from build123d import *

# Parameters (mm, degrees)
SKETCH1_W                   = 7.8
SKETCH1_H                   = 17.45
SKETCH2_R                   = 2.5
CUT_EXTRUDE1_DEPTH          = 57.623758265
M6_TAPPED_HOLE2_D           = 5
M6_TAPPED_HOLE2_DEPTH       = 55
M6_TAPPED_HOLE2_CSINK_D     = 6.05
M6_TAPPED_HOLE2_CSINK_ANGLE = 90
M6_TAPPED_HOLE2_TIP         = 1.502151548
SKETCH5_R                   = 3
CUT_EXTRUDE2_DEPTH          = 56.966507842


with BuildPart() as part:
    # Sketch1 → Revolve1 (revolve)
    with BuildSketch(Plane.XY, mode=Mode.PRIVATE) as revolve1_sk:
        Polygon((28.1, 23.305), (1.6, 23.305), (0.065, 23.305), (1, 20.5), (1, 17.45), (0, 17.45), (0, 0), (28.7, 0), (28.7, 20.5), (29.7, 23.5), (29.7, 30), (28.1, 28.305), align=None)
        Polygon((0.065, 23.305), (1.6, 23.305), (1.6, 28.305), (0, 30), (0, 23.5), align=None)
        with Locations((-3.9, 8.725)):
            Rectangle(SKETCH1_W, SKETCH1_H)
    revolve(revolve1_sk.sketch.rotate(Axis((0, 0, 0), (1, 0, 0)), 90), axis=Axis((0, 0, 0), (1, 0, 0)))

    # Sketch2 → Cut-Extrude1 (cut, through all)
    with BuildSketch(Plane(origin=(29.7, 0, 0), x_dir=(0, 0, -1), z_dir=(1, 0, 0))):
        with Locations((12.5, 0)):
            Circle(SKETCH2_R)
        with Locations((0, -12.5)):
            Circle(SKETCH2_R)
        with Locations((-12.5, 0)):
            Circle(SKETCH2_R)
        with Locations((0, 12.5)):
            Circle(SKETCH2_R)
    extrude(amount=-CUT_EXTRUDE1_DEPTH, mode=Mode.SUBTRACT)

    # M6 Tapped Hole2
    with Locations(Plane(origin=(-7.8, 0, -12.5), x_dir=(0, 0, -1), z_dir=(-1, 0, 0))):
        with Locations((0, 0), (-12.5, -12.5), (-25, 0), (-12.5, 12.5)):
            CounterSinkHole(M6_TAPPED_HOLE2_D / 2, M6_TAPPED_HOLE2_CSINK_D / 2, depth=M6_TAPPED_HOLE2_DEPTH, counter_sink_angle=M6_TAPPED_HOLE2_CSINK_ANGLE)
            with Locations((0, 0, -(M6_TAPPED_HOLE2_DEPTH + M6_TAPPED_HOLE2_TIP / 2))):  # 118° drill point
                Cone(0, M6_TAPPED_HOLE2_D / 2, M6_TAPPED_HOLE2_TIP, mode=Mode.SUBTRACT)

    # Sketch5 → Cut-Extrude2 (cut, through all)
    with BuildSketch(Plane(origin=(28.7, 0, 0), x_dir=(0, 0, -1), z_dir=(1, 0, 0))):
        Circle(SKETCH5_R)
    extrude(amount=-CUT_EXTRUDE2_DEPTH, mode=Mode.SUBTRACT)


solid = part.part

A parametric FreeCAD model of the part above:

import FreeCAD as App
import Part
import Sketcher

doc = App.newDocument("Part")
body = doc.addObject("PartDesign::Body", "Body")

# Sketch on XY plane
sketch1 = body.newObject("Sketcher::SketchObject", "Sketch")
sketch1.AttachmentSupport = (doc.getObject("XY_Plane"), [""])
sketch1.MapMode = "FlatFace"
sketch1.addGeometry(Part.LineSegment(App.Vector(28.1, 23.305, 0), App.Vector(1.6, 23.305, 0)), False)
sketch1.addGeometry(Part.LineSegment(App.Vector(1.6, 23.305, 0), App.Vector(1.6, 28.305, 0)), False)
sketch1.addGeometry(Part.LineSegment(App.Vector(1.6, 28.305, 0), App.Vector(0, 30, 0)), False)
sketch1.addGeometry(Part.LineSegment(App.Vector(0, 30, 0), App.Vector(0, 23.5, 0)), False)
sketch1.addGeometry(Part.LineSegment(App.Vector(0, 23.5, 0), App.Vector(1, 20.5, 0)), False)
sketch1.addGeometry(Part.LineSegment(App.Vector(1, 20.5, 0), App.Vector(1, 17.45, 0)), False)
sketch1.addGeometry(Part.LineSegment(App.Vector(1, 17.45, 0), App.Vector(-7.8, 17.45, 0)), False)
sketch1.addGeometry(Part.LineSegment(App.Vector(-7.8, 17.45, 0), App.Vector(-7.8, 0, 0)), False)
sketch1.addGeometry(Part.LineSegment(App.Vector(-7.8, 0, 0), App.Vector(28.7, 0, 0)), False)
sketch1.addGeometry(Part.LineSegment(App.Vector(28.7, 0, 0), App.Vector(28.7, 20.5, 0)), False)
sketch1.addGeometry(Part.LineSegment(App.Vector(28.7, 20.5, 0), App.Vector(29.7, 23.5, 0)), False)
sketch1.addGeometry(Part.LineSegment(App.Vector(29.7, 23.5, 0), App.Vector(29.7, 30, 0)), False)
sketch1.addGeometry(Part.LineSegment(App.Vector(29.7, 30, 0), App.Vector(28.1, 28.305, 0)), False)
sketch1.addGeometry(Part.LineSegment(App.Vector(28.1, 28.305, 0), App.Vector(28.1, 23.305, 0)), False)
sketch1.addConstraint(Sketcher.Constraint("Coincident", 0, 2, 1, 1))
sketch1.addConstraint(Sketcher.Constraint("Coincident", 1, 2, 2, 1))
sketch1.addConstraint(Sketcher.Constraint("Coincident", 2, 2, 3, 1))
sketch1.addConstraint(Sketcher.Constraint("Coincident", 3, 2, 4, 1))
sketch1.addConstraint(Sketcher.Constraint("Coincident", 4, 2, 5, 1))
sketch1.addConstraint(Sketcher.Constraint("Coincident", 5, 2, 6, 1))
sketch1.addConstraint(Sketcher.Constraint("Coincident", 6, 2, 7, 1))
sketch1.addConstraint(Sketcher.Constraint("Coincident", 7, 2, 8, 1))
sketch1.addConstraint(Sketcher.Constraint("Coincident", 8, 2, 9, 1))
sketch1.addConstraint(Sketcher.Constraint("Coincident", 9, 2, 10, 1))
sketch1.addConstraint(Sketcher.Constraint("Coincident", 10, 2, 11, 1))
sketch1.addConstraint(Sketcher.Constraint("Coincident", 11, 2, 12, 1))
sketch1.addConstraint(Sketcher.Constraint("Coincident", 12, 2, 13, 1))
sketch1.addConstraint(Sketcher.Constraint("Coincident", 13, 2, 0, 1))
sketch1.addConstraint(Sketcher.Constraint("Horizontal", 0))
sketch1.addConstraint(Sketcher.Constraint("Vertical", 1))
sketch1.addConstraint(Sketcher.Constraint("Vertical", 3))
sketch1.addConstraint(Sketcher.Constraint("Vertical", 5))
sketch1.addConstraint(Sketcher.Constraint("Horizontal", 6))
sketch1.addConstraint(Sketcher.Constraint("Vertical", 7))
sketch1.addConstraint(Sketcher.Constraint("Horizontal", 8))
sketch1.addConstraint(Sketcher.Constraint("Vertical", 9))
sketch1.addConstraint(Sketcher.Constraint("Vertical", 11))
sketch1.addConstraint(Sketcher.Constraint("Vertical", 13))
sketch1.addConstraint(Sketcher.Constraint("PointOnObject", 2, 2, -2))
sketch1.addConstraint(Sketcher.Constraint("PointOnObject", 7, 2, -1))
sketch1.addConstraint(Sketcher.Constraint("Horizontal", 4, 2, 9, 2))
sketch1.addConstraint(Sketcher.Constraint("Horizontal", 3, 2, 10, 2))
sketch1.addConstraint(Sketcher.Constraint("Horizontal", 2, 2, 11, 2))
sketch1.addConstraint(Sketcher.Constraint("Horizontal", 1, 2, 12, 2))
sketch1.addConstraint(Sketcher.Constraint("Equal", 4, 10))
sketch1.addConstraint(Sketcher.Constraint("Equal", 2, 12))
sketch1.addConstraint(Sketcher.Constraint("DistanceY", 1, 1, 1, 2, 5.0))
sketch1.addConstraint(Sketcher.Constraint("DistanceX", 0, 2, 0, 1, 26.5))
sketch1.addConstraint(Sketcher.Constraint("DistanceX", 6, 2, 6, 1, 8.8))
sketch1.addConstraint(Sketcher.Constraint("DistanceX", 8, 1, 8, 2, 36.5))
sketch1.addConstraint(Sketcher.Constraint("DistanceY", 3, 2, 3, 1, 6.5))
sketch1.addConstraint(Sketcher.Constraint("DistanceY", 9, 1, 9, 2, 20.5))
sketch1.addConstraint(Sketcher.Constraint("DistanceY", -1, 1, 2, 2, 30.0))
sketch1.addConstraint(Sketcher.Constraint("DistanceX", -1, 1, 4, 2, 1.0))
sketch1.addConstraint(Sketcher.Constraint("DistanceY", 5, 2, 5, 1, 3.05))
sketch1.addConstraint(Sketcher.Constraint("DistanceY", -1, 1, 0, 2, 23.305))
revolution = body.newObject("PartDesign::Revolution", "Revolution")
revolution.Profile = sketch1
revolution.ReferenceAxis = (sketch1, ["H_Axis"])
revolution.Angle = 360

# Sketch on YZ plane
sketch2 = body.newObject("Sketcher::SketchObject", "Sketch001")
sketch2.AttachmentSupport = (doc.getObject("YZ_Plane"), [""])
sketch2.MapMode = "FlatFace"
sketch2.AttachmentOffset = App.Placement(App.Vector(0, 0, 29.7), App.Rotation())
sketch2.addGeometry(Part.Circle(App.Vector(0, -12.5, 0), App.Vector(0, 0, 1), 2.5), False)
sketch2.addGeometry(Part.Circle(App.Vector(-12.5, 0, 0), App.Vector(0, 0, 1), 2.5), False)
sketch2.addGeometry(Part.Circle(App.Vector(0, 12.5, 0), App.Vector(0, 0, 1), 2.5), False)
sketch2.addGeometry(Part.Circle(App.Vector(12.5, 0, 0), App.Vector(0, 0, 1), 2.5), False)
sketch2.addConstraint(Sketcher.Constraint("Equal", 0, 1))
sketch2.addConstraint(Sketcher.Constraint("Equal", 1, 2))
sketch2.addConstraint(Sketcher.Constraint("Equal", 2, 3))
sketch2.addConstraint(Sketcher.Constraint("Symmetric", 0, 3, 2, 3, -1, 1))
sketch2.addConstraint(Sketcher.Constraint("Symmetric", 1, 3, 3, 3, -1, 1))
sketch2.addConstraint(Sketcher.Constraint("PointOnObject", 0, 3, -2))
sketch2.addConstraint(Sketcher.Constraint("PointOnObject", 1, 3, -1))
sketch2.addConstraint(Sketcher.Constraint("Diameter", 0, 5.0))
sketch2.addConstraint(Sketcher.Constraint("DistanceY", 0, 3, 2, 3, 25.0))
sketch2.addConstraint(Sketcher.Constraint("DistanceX", 1, 3, 3, 3, 25.0))
pocket1 = body.newObject("PartDesign::Pocket", "Pocket")
pocket1.Profile = sketch2
pocket1.Type = "ThroughAll"

# Sketch on YZ plane
sketch3 = body.newObject("Sketcher::SketchObject", "Sketch002")
sketch3.AttachmentSupport = (doc.getObject("YZ_Plane"), [""])
sketch3.MapMode = "FlatFace"
sketch3.AttachmentOffset = App.Placement(App.Vector(0, 0, -7.8), App.Rotation())
sketch3.addGeometry(Part.Circle(App.Vector(0, -12.5, 0), App.Vector(0, 0, 1), 2.5), False)
sketch3.addGeometry(Part.Circle(App.Vector(12.5, 0, 0), App.Vector(0, 0, 1), 2.5), False)
sketch3.addGeometry(Part.Circle(App.Vector(0, 12.5, 0), App.Vector(0, 0, 1), 2.5), False)
sketch3.addGeometry(Part.Circle(App.Vector(-12.5, 0, 0), App.Vector(0, 0, 1), 2.5), False)
sketch3.addConstraint(Sketcher.Constraint("Equal", 0, 1))
sketch3.addConstraint(Sketcher.Constraint("Equal", 1, 2))
sketch3.addConstraint(Sketcher.Constraint("Equal", 2, 3))
sketch3.addConstraint(Sketcher.Constraint("Symmetric", 0, 3, 2, 3, -1, 1))
sketch3.addConstraint(Sketcher.Constraint("Symmetric", 1, 3, 3, 3, -1, 1))
sketch3.addConstraint(Sketcher.Constraint("PointOnObject", 0, 3, -2))
sketch3.addConstraint(Sketcher.Constraint("PointOnObject", 1, 3, -1))
sketch3.addConstraint(Sketcher.Constraint("Diameter", 0, 5.0))
sketch3.addConstraint(Sketcher.Constraint("DistanceY", 0, 3, 2, 3, 25.0))
sketch3.addConstraint(Sketcher.Constraint("DistanceX", 3, 3, 1, 3, 25.0))
doc.recompute()
hole = body.newObject("PartDesign::Hole", "Hole")
hole.Profile = sketch3
hole.ThreadType = "None"
hole.Diameter = 5
hole.DepthType = "Dimension"
hole.Depth = 55
hole.DrillPoint = "Angled"
hole.DrillPointAngle = 118
hole.HoleCutType = "Countersink"
hole.HoleCutDiameter = 6.05
hole.HoleCutCountersinkAngle = 90
hole.Reversed = True

# Sketch on YZ plane
sketch4 = body.newObject("Sketcher::SketchObject", "Sketch003")
sketch4.AttachmentSupport = (doc.getObject("YZ_Plane"), [""])
sketch4.MapMode = "FlatFace"
sketch4.AttachmentOffset = App.Placement(App.Vector(0, 0, 28.7), App.Rotation())
sketch4.addGeometry(Part.Circle(App.Vector(0, 0, 0), App.Vector(0, 0, 1), 3), False)
sketch4.addConstraint(Sketcher.Constraint("Coincident", 0, 3, -1, 1))
sketch4.addConstraint(Sketcher.Constraint("Diameter", 0, 6.0))
pocket2 = body.newObject("PartDesign::Pocket", "Pocket001")
pocket2.Profile = sketch4
pocket2.Type = "ThroughAll"

doc.recompute()
